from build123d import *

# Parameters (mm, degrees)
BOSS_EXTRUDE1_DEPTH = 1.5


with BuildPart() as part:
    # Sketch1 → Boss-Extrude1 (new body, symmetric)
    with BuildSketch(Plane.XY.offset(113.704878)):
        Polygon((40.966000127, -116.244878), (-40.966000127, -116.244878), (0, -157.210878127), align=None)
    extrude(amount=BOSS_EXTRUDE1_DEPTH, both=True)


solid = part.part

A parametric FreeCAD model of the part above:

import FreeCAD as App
import Part
import Sketcher

V = App.Vector
Q = App.Units.Quantity


def add_polygon(sketch, points):
    """Adds a closed chain of lines whose ends are joined by coincident constraints."""
    first, n = sketch.GeometryCount, len(points)
    for a, b in zip(points, points[1:] + points[:1]):
        sketch.addGeometry(Part.LineSegment(App.Vector(*a, 0), App.Vector(*b, 0)), False)
    for i in range(n):
        sketch.addConstraint(Sketcher.Constraint("Coincident", first + i, 2, first + (i + 1) % n, 1))

doc = App.newDocument("Part")
body = doc.addObject("PartDesign::Body", "Body")

sketch1 = doc.addObject("Sketcher::SketchObject", "Sketch")
body.addObject(sketch1)
sketch1.AttachmentSupport = (doc.XY_Plane, [""])
sketch1.MapMode = "FlatFace"
sketch1.AttachmentOffset = App.Placement(V(0, 0, 113.704878), App.Rotation())
add_polygon(sketch1, [(41, -116), (-41, -116), (0, -157)])
sketch1.addConstraint([
    Sketcher.Constraint("Horizontal", 0),
    Sketcher.Constraint("PointOnObject", 1, 2, -2),
    Sketcher.Constraint("Perpendicular", 1, 2),
    Sketcher.Constraint("Equal", 1, 2),
    Sketcher.Constraint("DistanceX", 0, 2, 0, 1, Q("81.932 mm")),
    Sketcher.Constraint("DistanceY", 0, 2, -1, 1, Q("116.244878 mm")),
])
pad1 = doc.addObject("PartDesign::Pad", "Pad")
body.addObject(pad1)
pad1.Profile = sketch1
pad1.Length = 3
pad1.Midplane = True

doc.recompute()
